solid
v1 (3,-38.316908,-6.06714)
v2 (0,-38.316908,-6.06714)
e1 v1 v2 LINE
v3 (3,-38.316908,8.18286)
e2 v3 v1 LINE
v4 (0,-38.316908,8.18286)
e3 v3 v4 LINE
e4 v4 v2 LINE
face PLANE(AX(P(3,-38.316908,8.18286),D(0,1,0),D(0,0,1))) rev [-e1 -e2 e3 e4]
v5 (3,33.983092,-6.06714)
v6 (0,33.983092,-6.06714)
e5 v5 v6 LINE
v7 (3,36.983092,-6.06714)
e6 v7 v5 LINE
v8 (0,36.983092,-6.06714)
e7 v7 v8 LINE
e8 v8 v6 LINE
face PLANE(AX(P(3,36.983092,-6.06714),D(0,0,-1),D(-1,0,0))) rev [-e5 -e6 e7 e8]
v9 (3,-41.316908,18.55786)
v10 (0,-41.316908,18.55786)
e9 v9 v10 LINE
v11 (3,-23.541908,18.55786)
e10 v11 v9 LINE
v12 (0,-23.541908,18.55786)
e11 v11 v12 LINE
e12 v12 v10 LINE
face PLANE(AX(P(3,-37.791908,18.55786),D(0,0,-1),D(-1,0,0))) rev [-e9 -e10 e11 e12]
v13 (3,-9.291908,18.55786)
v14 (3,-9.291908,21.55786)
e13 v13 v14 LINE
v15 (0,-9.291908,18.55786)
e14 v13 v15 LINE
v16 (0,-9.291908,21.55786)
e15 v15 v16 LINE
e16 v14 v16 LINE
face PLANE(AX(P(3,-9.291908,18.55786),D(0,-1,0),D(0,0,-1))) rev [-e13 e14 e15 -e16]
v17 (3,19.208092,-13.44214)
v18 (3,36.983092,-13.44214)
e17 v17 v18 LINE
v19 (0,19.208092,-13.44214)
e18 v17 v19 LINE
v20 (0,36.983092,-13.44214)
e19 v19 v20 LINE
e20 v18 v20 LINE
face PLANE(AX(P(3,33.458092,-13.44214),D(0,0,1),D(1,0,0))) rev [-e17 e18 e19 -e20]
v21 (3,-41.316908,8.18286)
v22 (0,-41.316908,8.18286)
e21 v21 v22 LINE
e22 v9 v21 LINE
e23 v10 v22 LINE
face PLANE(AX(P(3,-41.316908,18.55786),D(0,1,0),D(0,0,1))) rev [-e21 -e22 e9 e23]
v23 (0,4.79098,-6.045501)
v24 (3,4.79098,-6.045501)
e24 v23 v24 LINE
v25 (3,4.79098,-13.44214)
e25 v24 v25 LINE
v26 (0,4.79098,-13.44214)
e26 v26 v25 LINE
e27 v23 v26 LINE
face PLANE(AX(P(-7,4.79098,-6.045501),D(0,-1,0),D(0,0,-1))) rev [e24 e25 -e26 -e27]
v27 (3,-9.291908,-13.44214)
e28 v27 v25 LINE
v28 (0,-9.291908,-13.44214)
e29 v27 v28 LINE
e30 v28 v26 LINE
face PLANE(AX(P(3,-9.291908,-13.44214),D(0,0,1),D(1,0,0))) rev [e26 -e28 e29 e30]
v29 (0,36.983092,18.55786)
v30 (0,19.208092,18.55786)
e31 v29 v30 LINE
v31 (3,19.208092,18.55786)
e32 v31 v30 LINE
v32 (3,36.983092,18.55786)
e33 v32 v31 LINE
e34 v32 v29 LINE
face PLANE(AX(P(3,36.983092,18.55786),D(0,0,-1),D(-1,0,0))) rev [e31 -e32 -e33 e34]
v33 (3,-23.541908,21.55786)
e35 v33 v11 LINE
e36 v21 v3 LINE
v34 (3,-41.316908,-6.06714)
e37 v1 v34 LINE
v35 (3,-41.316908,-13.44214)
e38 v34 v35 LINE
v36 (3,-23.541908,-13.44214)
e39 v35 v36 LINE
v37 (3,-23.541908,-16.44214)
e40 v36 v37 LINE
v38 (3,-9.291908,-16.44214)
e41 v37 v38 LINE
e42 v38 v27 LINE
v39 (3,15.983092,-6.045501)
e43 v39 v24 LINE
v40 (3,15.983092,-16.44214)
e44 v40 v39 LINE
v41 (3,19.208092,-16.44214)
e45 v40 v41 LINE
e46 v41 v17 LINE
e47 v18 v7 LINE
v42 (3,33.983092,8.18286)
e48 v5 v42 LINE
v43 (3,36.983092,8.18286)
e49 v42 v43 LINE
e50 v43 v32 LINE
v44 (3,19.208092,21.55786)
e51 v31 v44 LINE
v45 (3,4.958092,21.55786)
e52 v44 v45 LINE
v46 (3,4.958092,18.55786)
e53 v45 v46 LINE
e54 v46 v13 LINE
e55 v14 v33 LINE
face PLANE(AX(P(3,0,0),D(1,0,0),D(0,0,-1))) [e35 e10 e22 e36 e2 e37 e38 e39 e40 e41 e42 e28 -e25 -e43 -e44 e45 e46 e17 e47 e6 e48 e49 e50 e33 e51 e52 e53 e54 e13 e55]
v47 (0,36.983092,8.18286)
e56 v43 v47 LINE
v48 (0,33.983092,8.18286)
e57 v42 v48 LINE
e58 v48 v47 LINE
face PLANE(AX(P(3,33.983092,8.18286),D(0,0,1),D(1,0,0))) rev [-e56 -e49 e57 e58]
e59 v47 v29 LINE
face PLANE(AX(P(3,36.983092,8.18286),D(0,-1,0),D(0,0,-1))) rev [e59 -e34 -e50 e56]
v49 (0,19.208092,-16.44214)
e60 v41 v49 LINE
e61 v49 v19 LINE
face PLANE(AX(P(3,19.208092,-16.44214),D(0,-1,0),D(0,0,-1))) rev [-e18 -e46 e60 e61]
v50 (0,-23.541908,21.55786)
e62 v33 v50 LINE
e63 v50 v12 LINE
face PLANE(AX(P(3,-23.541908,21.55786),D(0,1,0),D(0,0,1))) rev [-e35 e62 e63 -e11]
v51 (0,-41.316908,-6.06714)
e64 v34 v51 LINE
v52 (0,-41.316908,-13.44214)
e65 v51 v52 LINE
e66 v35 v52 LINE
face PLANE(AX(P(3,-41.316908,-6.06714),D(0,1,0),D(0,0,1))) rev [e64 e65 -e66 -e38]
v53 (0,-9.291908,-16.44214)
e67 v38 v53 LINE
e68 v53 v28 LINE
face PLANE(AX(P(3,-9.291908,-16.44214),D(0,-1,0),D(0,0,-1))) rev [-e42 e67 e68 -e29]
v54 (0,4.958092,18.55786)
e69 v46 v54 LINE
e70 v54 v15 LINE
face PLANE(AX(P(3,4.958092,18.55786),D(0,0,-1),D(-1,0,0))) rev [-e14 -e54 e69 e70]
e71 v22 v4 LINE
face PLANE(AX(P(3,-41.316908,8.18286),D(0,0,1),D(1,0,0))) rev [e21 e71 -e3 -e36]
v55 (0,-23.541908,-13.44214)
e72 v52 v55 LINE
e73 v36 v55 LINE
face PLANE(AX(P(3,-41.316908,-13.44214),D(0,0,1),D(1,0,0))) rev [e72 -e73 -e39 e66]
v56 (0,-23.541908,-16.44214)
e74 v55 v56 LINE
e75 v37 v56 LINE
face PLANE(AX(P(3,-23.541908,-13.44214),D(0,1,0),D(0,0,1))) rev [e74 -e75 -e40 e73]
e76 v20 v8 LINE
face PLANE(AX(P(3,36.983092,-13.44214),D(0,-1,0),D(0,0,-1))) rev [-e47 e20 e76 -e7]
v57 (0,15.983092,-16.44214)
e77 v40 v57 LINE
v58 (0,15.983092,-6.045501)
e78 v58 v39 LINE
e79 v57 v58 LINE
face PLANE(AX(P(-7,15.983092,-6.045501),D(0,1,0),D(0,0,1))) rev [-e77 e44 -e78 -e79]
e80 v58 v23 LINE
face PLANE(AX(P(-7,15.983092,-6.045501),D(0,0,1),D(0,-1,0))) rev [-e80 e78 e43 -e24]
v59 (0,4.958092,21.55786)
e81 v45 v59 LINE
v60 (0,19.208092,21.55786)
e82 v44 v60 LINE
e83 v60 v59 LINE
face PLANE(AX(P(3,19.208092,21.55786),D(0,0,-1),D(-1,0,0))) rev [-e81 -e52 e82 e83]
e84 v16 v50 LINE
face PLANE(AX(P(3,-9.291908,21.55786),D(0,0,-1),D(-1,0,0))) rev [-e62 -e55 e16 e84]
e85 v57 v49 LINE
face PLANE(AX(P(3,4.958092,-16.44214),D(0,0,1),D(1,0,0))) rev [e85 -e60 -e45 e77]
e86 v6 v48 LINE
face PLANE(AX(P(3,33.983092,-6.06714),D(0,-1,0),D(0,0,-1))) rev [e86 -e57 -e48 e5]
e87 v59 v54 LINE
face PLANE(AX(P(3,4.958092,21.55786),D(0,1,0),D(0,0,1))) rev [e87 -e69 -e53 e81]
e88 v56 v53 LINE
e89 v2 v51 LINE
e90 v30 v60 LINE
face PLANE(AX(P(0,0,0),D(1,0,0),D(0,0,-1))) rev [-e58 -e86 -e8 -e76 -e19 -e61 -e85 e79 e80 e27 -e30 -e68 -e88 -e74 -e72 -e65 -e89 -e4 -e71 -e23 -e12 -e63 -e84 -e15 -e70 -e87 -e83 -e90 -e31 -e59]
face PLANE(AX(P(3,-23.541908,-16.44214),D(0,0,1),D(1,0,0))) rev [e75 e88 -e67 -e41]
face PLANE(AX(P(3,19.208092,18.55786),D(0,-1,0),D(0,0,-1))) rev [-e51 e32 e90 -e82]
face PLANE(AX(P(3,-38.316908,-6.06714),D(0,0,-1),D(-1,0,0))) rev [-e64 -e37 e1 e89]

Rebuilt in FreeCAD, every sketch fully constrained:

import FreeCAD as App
import Part
import Sketcher
Q = App.Units.Quantity

doc = App.newDocument("Part")
body = doc.addObject("PartDesign::Body", "Body")

sketch1 = body.newObject("Sketcher::SketchObject", "Sketch")
sketch1.AttachmentSupport = (doc.getObject("YZ_Plane"), [""])
sketch1.MapMode = "FlatFace"
sketch1.addGeometry(Part.LineSegment(App.Vector(37, 18.6, 0), App.Vector(19.2, 18.6, 0)), False)
sketch1.addGeometry(Part.LineSegment(App.Vector(19.2, 18.6, 0), App.Vector(19.2, 21.6, 0)), False)
sketch1.addGeometry(Part.LineSegment(App.Vector(19.2, 21.6, 0), App.Vector(5, 21.6, 0)), False)
sketch1.addGeometry(Part.LineSegment(App.Vector(5, 21.6, 0), App.Vector(5, 18.6, 0)), False)
sketch1.addGeometry(Part.LineSegment(App.Vector(5, 18.6, 0), App.Vector(-9.3, 18.6, 0)), False)
sketch1.addGeometry(Part.LineSegment(App.Vector(-9.3, 18.6, 0), App.Vector(-9.3, 21.6, 0)), False)
sketch1.addGeometry(Part.LineSegment(App.Vector(-9.3, 21.6, 0), App.Vector(-23.5, 21.6, 0)), False)
sketch1.addGeometry(Part.LineSegment(App.Vector(-23.5, 21.6, 0), App.Vector(-23.5, 18.6, 0)), False)
sketch1.addGeometry(Part.LineSegment(App.Vector(-23.5, 18.6, 0), App.Vector(-41.3, 18.6, 0)), False)
sketch1.addGeometry(Part.LineSegment(App.Vector(-41.3, 18.6, 0), App.Vector(-41.3, 8.2, 0)), False)
sketch1.addGeometry(Part.LineSegment(App.Vector(-41.3, 8.2, 0), App.Vector(-38.3, 8.2, 0)), False)
sketch1.addGeometry(Part.LineSegment(App.Vector(-38.3, 8.2, 0), App.Vector(-38.3, -6.1, 0)), False)
sketch1.addGeometry(Part.LineSegment(App.Vector(-38.3, -6.1, 0), App.Vector(-41.3, -6.1, 0)), False)
sketch1.addGeometry(Part.LineSegment(App.Vector(-41.3, -6.1, 0), App.Vector(-41.3, -13.4, 0)), False)
sketch1.addGeometry(Part.LineSegment(App.Vector(-41.3, -13.4, 0), App.Vector(-23.5, -13.4, 0)), False)
sketch1.addGeometry(Part.LineSegment(App.Vector(-23.5, -13.4, 0), App.Vector(-23.5, -16.4, 0)), False)
sketch1.addGeometry(Part.LineSegment(App.Vector(-23.5, -16.4, 0), App.Vector(-9.3, -16.4, 0)), False)
sketch1.addGeometry(Part.LineSegment(App.Vector(-9.3, -16.4, 0), App.Vector(-9.3, -13.4, 0)), False)
sketch1.addGeometry(Part.LineSegment(App.Vector(-9.3, -13.4, 0), App.Vector(5, -13.4, 0)), False)
sketch1.addGeometry(Part.LineSegment(App.Vector(5, -13.4, 0), App.Vector(5, -16.4, 0)), False)
sketch1.addGeometry(Part.LineSegment(App.Vector(5, -16.4, 0), App.Vector(19.2, -16.4, 0)), False)
sketch1.addGeometry(Part.LineSegment(App.Vector(19.2, -16.4, 0), App.Vector(19.2, -13.4, 0)), False)
sketch1.addGeometry(Part.LineSegment(App.Vector(19.2, -13.4, 0), App.Vector(37, -13.4, 0)), False)
sketch1.addGeometry(Part.LineSegment(App.Vector(37, -13.4, 0), App.Vector(37, -6.1, 0)), False)
sketch1.addGeometry(Part.LineSegment(App.Vector(37, -6.1, 0), App.Vector(34, -6.1, 0)), False)
sketch1.addGeometry(Part.LineSegment(App.Vector(34, -6.1, 0), App.Vector(34, 8.2, 0)), False)
sketch1.addGeometry(Part.LineSegment(App.Vector(34, 8.2, 0), App.Vector(37, 8.2, 0)), False)
sketch1.addGeometry(Part.LineSegment(App.Vector(37, 8.2, 0), App.Vector(37, 18.6, 0)), False)
sketch1.addConstraint(Sketcher.Constraint("Coincident", 0, 2, 1, 1))
sketch1.addConstraint(Sketcher.Constraint("Coincident", 1, 2, 2, 1))
sketch1.addConstraint(Sketcher.Constraint("Coincident", 2, 2, 3, 1))
sketch1.addConstraint(Sketcher.Constraint("Coincident", 3, 2, 4, 1))
sketch1.addConstraint(Sketcher.Constraint("Coincident", 4, 2, 5, 1))
sketch1.addConstraint(Sketcher.Constraint("Coincident", 5, 2, 6, 1))
sketch1.addConstraint(Sketcher.Constraint("Coincident", 6, 2, 7, 1))
sketch1.addConstraint(Sketcher.Constraint("Coincident", 7, 2, 8, 1))
sketch1.addConstraint(Sketcher.Constraint("Coincident", 8, 2, 9, 1))
sketch1.addConstraint(Sketcher.Constraint("Coincident", 9, 2, 10, 1))
sketch1.addConstraint(Sketcher.Constraint("Coincident", 10, 2, 11, 1))
sketch1.addConstraint(Sketcher.Constraint("Coincident", 11, 2, 12, 1))
sketch1.addConstraint(Sketcher.Constraint("Coincident", 12, 2, 13, 1))
sketch1.addConstraint(Sketcher.Constraint("Coincident", 13, 2, 14, 1))
sketch1.addConstraint(Sketcher.Constraint("Coincident", 14, 2, 15, 1))
sketch1.addConstraint(Sketcher.Constraint("Coincident", 15, 2, 16, 1))
sketch1.addConstraint(Sketcher.Constraint("Coincident", 16, 2, 17, 1))
sketch1.addConstraint(Sketcher.Constraint("Coincident", 17, 2, 18, 1))
sketch1.addConstraint(Sketcher.Constraint("Coincident", 18, 2, 19, 1))
sketch1.addConstraint(Sketcher.Constraint("Coincident", 19, 2, 20, 1))
sketch1.addConstraint(Sketcher.Constraint("Coincident", 20, 2, 21, 1))
sketch1.addConstraint(Sketcher.Constraint("Coincident", 21, 2, 22, 1))
sketch1.addConstraint(Sketcher.Constraint("Coincident", 22, 2, 23, 1))
sketch1.addConstraint(Sketcher.Constraint("Coincident", 23, 2, 24, 1))
sketch1.addConstraint(Sketcher.Constraint("Coincident", 24, 2, 25, 1))
sketch1.addConstraint(Sketcher.Constraint("Coincident", 25, 2, 26, 1))
sketch1.addConstraint(Sketcher.Constraint("Coincident", 26, 2, 27, 1))
sketch1.addConstraint(Sketcher.Constraint("Coincident", 27, 2, 0, 1))
sketch1.addConstraint(Sketcher.Constraint("Horizontal", 0))
sketch1.addConstraint(Sketcher.Constraint("Vertical", 1))
sketch1.addConstraint(Sketcher.Constraint("Horizontal", 2))
sketch1.addConstraint(Sketcher.Constraint("Vertical", 3))
sketch1.addConstraint(Sketcher.Constraint("Horizontal", 4))
sketch1.addConstraint(Sketcher.Constraint("Vertical", 5))
sketch1.addConstraint(Sketcher.Constraint("Horizontal", 6))
sketch1.addConstraint(Sketcher.Constraint("Vertical", 7))
sketch1.addConstraint(Sketcher.Constraint("Horizontal", 8))
sketch1.addConstraint(Sketcher.Constraint("Vertical", 9))
sketch1.addConstraint(Sketcher.Constraint("Horizontal", 10))
sketch1.addConstraint(Sketcher.Constraint("Vertical", 11))
sketch1.addConstraint(Sketcher.Constraint("Horizontal", 12))
sketch1.addConstraint(Sketcher.Constraint("Vertical", 13))
sketch1.addConstraint(Sketcher.Constraint("Horizontal", 14))
sketch1.addConstraint(Sketcher.Constraint("Vertical", 15))
sketch1.addConstraint(Sketcher.Constraint("Horizontal", 16))
sketch1.addConstraint(Sketcher.Constraint("Vertical", 17))
sketch1.addConstraint(Sketcher.Constraint("Horizontal", 18))
sketch1.addConstraint(Sketcher.Constraint("Vertical", 19))
sketch1.addConstraint(Sketcher.Constraint("Horizontal", 20))
sketch1.addConstraint(Sketcher.Constraint("Vertical", 21))
sketch1.addConstraint(Sketcher.Constraint("Horizontal", 22))
sketch1.addConstraint(Sketcher.Constraint("Vertical", 23))
sketch1.addConstraint(Sketcher.Constraint("Horizontal", 24))
sketch1.addConstraint(Sketcher.Constraint("Vertical", 25))
sketch1.addConstraint(Sketcher.Constraint("Horizontal", 26))
sketch1.addConstraint(Sketcher.Constraint("Vertical", 27))
sketch1.addConstraint(Sketcher.Constraint("Horizontal", 0, 2, 3, 2))
sketch1.addConstraint(Sketcher.Constraint("Horizontal", 2, 2, 5, 2))
sketch1.addConstraint(Sketcher.Constraint("Horizontal", 4, 2, 7, 2))
sketch1.addConstraint(Sketcher.Constraint("Horizontal", 14, 2, 17, 2))
sketch1.addConstraint(Sketcher.Constraint("Horizontal", 16, 2, 19, 2))
sketch1.addConstraint(Sketcher.Constraint("Horizontal", 18, 2, 21, 2))
sketch1.addConstraint(Sketcher.Constraint("Horizontal", 12, 2, 23, 2))
sketch1.addConstraint(Sketcher.Constraint("Horizontal", 10, 2, 25, 2))
sketch1.addConstraint(Sketcher.Constraint("Vertical", 9, 2, 12, 2))
sketch1.addConstraint(Sketcher.Constraint("Vertical", 7, 2, 14, 2))
sketch1.addConstraint(Sketcher.Constraint("Vertical", 5, 2, 16, 2))
sketch1.addConstraint(Sketcher.Constraint("Vertical", 3, 2, 18, 2))
sketch1.addConstraint(Sketcher.Constraint("Vertical", 1, 2, 20, 2))
sketch1.addConstraint(Sketcher.Constraint("Vertical", 23, 2, 26, 2))
sketch1.addConstraint(Sketcher.Constraint("Equal", 2, 4))
sketch1.addConstraint(Sketcher.Constraint("Equal", 4, 6))
sketch1.addConstraint(Sketcher.Constraint("Equal", 0, 8))
sketch1.addConstraint(Sketcher.Constraint("Equal", 12, 24))
sketch1.addConstraint(Sketcher.Constraint("Equal", 26, 1))
sketch1.addConstraint(Sketcher.Constraint("Equal", 20, 11))
sketch1.addConstraint(Sketcher.Constraint("Equal", 7, 15))
sketch1.addConstraint(Sketcher.Constraint("DistanceX", 10, 1, 10, 2, Q("3 mm")))
sketch1.addConstraint(Sketcher.Constraint("DistanceY", 13, 2, 8, 2, Q("32 mm")))
sketch1.addConstraint(Sketcher.Constraint("DistanceX", 2, 2, 2, 1, Q("14.25 mm")))
sketch1.addConstraint(Sketcher.Constraint("DistanceX", 0, 2, 0, 1, Q("17.775 mm")))
sketch1.addConstraint(Sketcher.Constraint("DistanceY", 9, 2, 9, 1, Q("10.375 mm")))
sketch1.addConstraint(Sketcher.Constraint("DistanceY", -1, 1, 0, 2, Q("18.55786 mm")))
sketch1.addConstraint(Sketcher.Constraint("DistanceX", -1, 1, 0, 2, Q("19.208092 mm")))
pad1 = body.newObject("PartDesign::Pad", "Pad")
pad1.Profile = sketch1
pad1.Length = 3

sketch2 = body.newObject("Sketcher::SketchObject", "Sketch001")
sketch2.AttachmentSupport = (doc.getObject("YZ_Plane"), [""])
sketch2.MapMode = "FlatFace"
sketch2.AttachmentOffset = App.Placement(App.Vector(0, 0, 3), App.Rotation())
sketch2.addGeometry(Part.LineSegment(App.Vector(16, -6, 0), App.Vector(5, -6, 0)), False)
sketch2.addGeometry(Part.LineSegment(App.Vector(5, -6, 0), App.Vector(5, -17, 0)), False)
sketch2.addGeometry(Part.LineSegment(App.Vector(5, -17, 0), App.Vector(16, -17, 0)), False)
sketch2.addGeometry(Part.LineSegment(App.Vector(16, -17, 0), App.Vector(16, -6, 0)), False)
sketch2.addConstraint(Sketcher.Constraint("Coincident", 0, 2, 1, 1))
sketch2.addConstraint(Sketcher.Constraint("Coincident", 1, 2, 2, 1))
sketch2.addConstraint(Sketcher.Constraint("Coincident", 2, 2, 3, 1))
sketch2.addConstraint(Sketcher.Constraint("Coincident", 3, 2, 0, 1))
sketch2.addConstraint(Sketcher.Constraint("Horizontal", 0))
sketch2.addConstraint(Sketcher.Constraint("Vertical", 1))
sketch2.addConstraint(Sketcher.Constraint("Horizontal", 2))
sketch2.addConstraint(Sketcher.Constraint("Vertical", 3))
sketch2.addConstraint(Sketcher.Constraint("DistanceY", 1, 2, 1, 1, Q("11 mm")))
sketch2.addConstraint(Sketcher.Constraint("DistanceY", 0, 2, -1, 1, Q("6.045501 mm")))
sketch2.addConstraint(Sketcher.Constraint("DistanceX", 0, 2, 0, 1, Q("11.192112 mm")))
sketch2.addConstraint(Sketcher.Constraint("DistanceX", -1, 1, 0, 2, Q("4.79098 mm")))
pocket1 = body.newObject("PartDesign::Pocket", "Pocket")
pocket1.Profile = sketch2
pocket1.Length = 10

doc.recompute()
